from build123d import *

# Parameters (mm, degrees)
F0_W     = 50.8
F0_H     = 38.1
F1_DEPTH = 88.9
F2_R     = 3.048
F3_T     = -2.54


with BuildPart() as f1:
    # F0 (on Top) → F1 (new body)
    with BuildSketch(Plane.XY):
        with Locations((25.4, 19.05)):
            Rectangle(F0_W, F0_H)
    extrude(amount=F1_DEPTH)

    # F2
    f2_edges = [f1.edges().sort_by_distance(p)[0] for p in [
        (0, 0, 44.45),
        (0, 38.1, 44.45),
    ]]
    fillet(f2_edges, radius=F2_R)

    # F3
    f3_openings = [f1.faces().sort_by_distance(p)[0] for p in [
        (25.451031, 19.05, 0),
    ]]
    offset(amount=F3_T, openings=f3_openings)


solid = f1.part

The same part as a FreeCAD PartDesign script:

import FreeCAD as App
import Part
import Sketcher
from FreeCAD import Vector
Q = App.Units.Quantity


def edges_at(feature, points):
    """Names of the edges that pass closest to the given points."""
    edges = feature.Shape.Edges
    near = lambda p: min(range(len(edges)), key=lambda i: edges[i].distToShape(Part.Vertex(*p))[0])
    return sorted({f"Edge{near(p) + 1}" for p in points})


def faces_at(feature, points):
    """Names of the faces that lie closest to the given points."""
    faces = feature.Shape.Faces
    near = lambda p: min(range(len(faces)), key=lambda i: faces[i].distToShape(Part.Vertex(*p))[0])
    return sorted({f"Face{near(p) + 1}" for p in points})

doc = App.newDocument("Part")
body = doc.addObject("PartDesign::Body", "Body")

# Sketch on XY plane
sketch1 = body.newObject("Sketcher::SketchObject", "Sketch")
sketch1.AttachmentSupport = (doc.getObject("XY_Plane"), [""])
sketch1.MapMode = "FlatFace"
sketch1.addGeometry(Part.LineSegment(Vector(0, 38, 0), Vector(0, 0, 0)), False)
sketch1.addGeometry(Part.LineSegment(Vector(0, 0, 0), Vector(51, 0, 0)), False)
sketch1.addGeometry(Part.LineSegment(Vector(51, 0, 0), Vector(51, 38, 0)), False)
sketch1.addGeometry(Part.LineSegment(Vector(51, 38, 0), Vector(0, 38, 0)), False)
sketch1.addConstraint(Sketcher.Constraint("Coincident", 0, 2, 1, 1))
sketch1.addConstraint(Sketcher.Constraint("Coincident", 1, 2, 2, 1))
sketch1.addConstraint(Sketcher.Constraint("Coincident", 2, 2, 3, 1))
sketch1.addConstraint(Sketcher.Constraint("Coincident", 3, 2, 0, 1))
sketch1.addConstraint(Sketcher.Constraint("Vertical", 0))
sketch1.addConstraint(Sketcher.Constraint("Horizontal", 1))
sketch1.addConstraint(Sketcher.Constraint("Vertical", 2))
sketch1.addConstraint(Sketcher.Constraint("Horizontal", 3))
sketch1.addConstraint(Sketcher.Constraint("Coincident", 0, 2, -1, 1))
sketch1.addConstraint(Sketcher.Constraint("DistanceX", 1, 1, 1, 2, Q("2 in")))
sketch1.addConstraint(Sketcher.Constraint("DistanceY", 0, 2, 0, 1, Q("1.5 in")))
pad1 = body.newObject("PartDesign::Pad", "Pad")
pad1.Profile = sketch1
pad1.Length = Q("3.5 in")
doc.recompute()

fillet = body.newObject("PartDesign::Fillet", "Fillet")
fillet.Base = (pad1, edges_at(pad1, [(0, 0, 44.45), (0, 38.1, 44.45)]))
fillet.Radius = Q("0.12 in")
doc.recompute()

thickness = body.newObject("PartDesign::Thickness", "Thickness")
thickness.Base = (fillet, faces_at(fillet, [(25.4, 19.05, 0)]))
thickness.Value = Q("0.1 in")
thickness.Reversed = True
thickness.Join = "Arc"

doc.recompute()
